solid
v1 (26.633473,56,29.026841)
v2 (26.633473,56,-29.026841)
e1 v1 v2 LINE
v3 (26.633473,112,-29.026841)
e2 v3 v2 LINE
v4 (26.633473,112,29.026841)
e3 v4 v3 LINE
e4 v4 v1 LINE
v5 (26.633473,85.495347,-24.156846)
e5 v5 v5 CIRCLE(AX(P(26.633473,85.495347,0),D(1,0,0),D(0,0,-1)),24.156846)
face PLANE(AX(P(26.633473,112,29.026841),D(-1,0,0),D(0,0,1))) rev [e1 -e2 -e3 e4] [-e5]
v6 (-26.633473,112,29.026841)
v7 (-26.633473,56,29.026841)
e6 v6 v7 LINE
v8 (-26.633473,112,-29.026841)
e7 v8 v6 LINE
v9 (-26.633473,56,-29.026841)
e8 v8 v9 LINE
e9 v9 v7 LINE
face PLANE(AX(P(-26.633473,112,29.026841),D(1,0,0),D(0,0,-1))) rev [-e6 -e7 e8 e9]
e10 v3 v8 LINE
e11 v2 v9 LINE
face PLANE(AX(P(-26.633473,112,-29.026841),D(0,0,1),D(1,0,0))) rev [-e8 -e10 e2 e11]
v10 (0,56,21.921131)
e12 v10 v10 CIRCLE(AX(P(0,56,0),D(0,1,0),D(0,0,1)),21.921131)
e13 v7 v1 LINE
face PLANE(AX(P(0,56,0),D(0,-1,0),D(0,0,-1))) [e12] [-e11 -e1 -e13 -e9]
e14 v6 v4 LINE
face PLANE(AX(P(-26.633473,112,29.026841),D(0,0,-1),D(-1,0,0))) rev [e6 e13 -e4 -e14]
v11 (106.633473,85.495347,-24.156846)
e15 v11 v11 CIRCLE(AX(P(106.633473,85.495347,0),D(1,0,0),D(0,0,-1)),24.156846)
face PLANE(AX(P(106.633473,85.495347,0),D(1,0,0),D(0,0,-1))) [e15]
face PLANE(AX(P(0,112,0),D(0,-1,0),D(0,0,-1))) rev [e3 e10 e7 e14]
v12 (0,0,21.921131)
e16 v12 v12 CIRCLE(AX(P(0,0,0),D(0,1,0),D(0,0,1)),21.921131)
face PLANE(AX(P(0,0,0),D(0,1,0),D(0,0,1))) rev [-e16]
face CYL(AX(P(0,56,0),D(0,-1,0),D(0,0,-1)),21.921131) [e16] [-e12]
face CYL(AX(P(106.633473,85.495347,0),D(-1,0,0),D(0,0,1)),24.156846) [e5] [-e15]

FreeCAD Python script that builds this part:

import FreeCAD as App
import Part
import Sketcher
from FreeCAD import Vector


def add_polygon(sketch, points):
    """Adds a closed chain of lines whose ends are joined by coincident constraints."""
    first, n = sketch.GeometryCount, len(points)
    for a, b in zip(points, points[1:] + points[:1]):
        sketch.addGeometry(Part.LineSegment(App.Vector(*a, 0), App.Vector(*b, 0)), False)
    for i in range(n):
        sketch.addConstraint(Sketcher.Constraint("Coincident", first + i, 2, first + (i + 1) % n, 1))

doc = App.newDocument("Part")
params = doc.addObject("Spreadsheet::Sheet", "Params")
for row, (alias, value) in enumerate([
    ("pad1_length", "56 mm"),
    ("pad2_length", "56 mm"),
    ("pad3_length", "80 mm"),
], start=1):
    params.set(f"A{row}", alias)
    params.set(f"B{row}", "=" + value)
    params.setAlias(f"B{row}", alias)

body = doc.addObject("PartDesign::Body", "Body")

sketch1 = body.newObject("Sketcher::SketchObject", "Sketch")
sketch1.AttachmentSupport = (doc.getObject("XZ_Plane"), [""])
sketch1.MapMode = "FlatFace"
sketch1.addGeometry(Part.Circle(Vector(0, 0, 0), Vector(0, 0, 1), 22), False)
sketch1.addConstraint([
    Sketcher.Constraint("Coincident", 0, 3, -1, 1),
    Sketcher.Constraint("Diameter", 0, 43.842263),
])
pad1 = body.newObject("PartDesign::Pad", "Pad")
pad1.Profile = sketch1
pad1.setExpression("Length", "Params.pad1_length")
pad1.Reversed = True

sketch2 = body.newObject("Sketcher::SketchObject", "Sketch001")
sketch2.AttachmentSupport = (doc.getObject("XZ_Plane"), [""])
sketch2.MapMode = "FlatFace"
sketch2.AttachmentOffset = App.Placement(Vector(0, 0, -56), App.Rotation())
add_polygon(sketch2, [(-27, -29), (-27, 29), (27, 29), (27, -29)])
sketch2.addConstraint([
    Sketcher.Constraint("Vertical", 0),
    Sketcher.Constraint("Horizontal", 1),
    Sketcher.Constraint("Vertical", 2),
    Sketcher.Constraint("Horizontal", 3),
    Sketcher.Constraint("Symmetric", 0, 2, 2, 2, -1, 1),
    Sketcher.Constraint("DistanceX", 1, 1, 1, 2, 53.266946),
    Sketcher.Constraint("DistanceY", 0, 1, 0, 2, 58.053682),
])
pad2 = body.newObject("PartDesign::Pad", "Pad001")
pad2.Profile = sketch2
pad2.setExpression("Length", "Params.pad2_length")
pad2.Reversed = True

sketch3 = body.newObject("Sketcher::SketchObject", "Sketch002")
sketch3.AttachmentSupport = (doc.getObject("YZ_Plane"), [""])
sketch3.MapMode = "FlatFace"
sketch3.AttachmentOffset = App.Placement(Vector(0, 0, 26.633473), App.Rotation())
sketch3.addGeometry(Part.Circle(Vector(85, 0, 0), Vector(0, 0, 1), 24), False)
sketch3.addConstraint([
    Sketcher.Constraint("PointOnObject", 0, 3, -1),
    Sketcher.Constraint("Diameter", 0, 48.313692),
    Sketcher.Constraint("DistanceX", -1, 1, 0, 3, 85.495347),
])
pad3 = body.newObject("PartDesign::Pad", "Pad002")
pad3.Profile = sketch3
pad3.setExpression("Length", "Params.pad3_length")

doc.recompute()
